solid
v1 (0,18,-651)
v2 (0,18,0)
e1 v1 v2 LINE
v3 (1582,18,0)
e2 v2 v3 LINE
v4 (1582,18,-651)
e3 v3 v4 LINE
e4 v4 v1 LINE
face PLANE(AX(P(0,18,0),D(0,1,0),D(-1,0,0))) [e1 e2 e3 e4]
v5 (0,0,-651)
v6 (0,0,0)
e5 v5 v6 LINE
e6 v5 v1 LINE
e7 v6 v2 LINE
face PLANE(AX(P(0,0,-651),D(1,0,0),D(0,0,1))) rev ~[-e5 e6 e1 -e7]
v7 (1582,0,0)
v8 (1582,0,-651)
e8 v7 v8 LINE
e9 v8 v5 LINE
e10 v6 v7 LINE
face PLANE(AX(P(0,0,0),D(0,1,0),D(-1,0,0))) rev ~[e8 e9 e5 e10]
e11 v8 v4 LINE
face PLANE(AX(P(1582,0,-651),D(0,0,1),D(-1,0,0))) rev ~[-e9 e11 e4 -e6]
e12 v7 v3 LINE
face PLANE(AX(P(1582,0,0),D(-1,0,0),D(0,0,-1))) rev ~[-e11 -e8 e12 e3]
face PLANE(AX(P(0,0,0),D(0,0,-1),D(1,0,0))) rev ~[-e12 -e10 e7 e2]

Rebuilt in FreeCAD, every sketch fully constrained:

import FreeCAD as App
import Part
import Sketcher
from FreeCAD import Vector


def add_polygon(sketch, points):
    """Adds a closed chain of lines whose ends are joined by coincident constraints."""
    first, n = sketch.GeometryCount, len(points)
    for a, b in zip(points, points[1:] + points[:1]):
        sketch.addGeometry(Part.LineSegment(App.Vector(*a, 0), App.Vector(*b, 0)), False)
    for i in range(n):
        sketch.addConstraint(Sketcher.Constraint("Coincident", first + i, 2, first + (i + 1) % n, 1))

doc = App.newDocument("Part")
body = doc.addObject("PartDesign::Body", "Body")

# Sketch on XZ plane
sketch1 = doc.addObject("Sketcher::SketchObject", "Sketch")
body.addObject(sketch1)
sketch1.AttachmentSupport = (doc.XZ_Plane, [""])
sketch1.MapMode = "FlatFace"
add_polygon(sketch1, [(0, -651), (0, 0), (1582, 0), (1582, -651)])  # lines 0-3
sketch1.addConstraint(Sketcher.Constraint("Vertical", 0))
sketch1.addConstraint(Sketcher.Constraint("Horizontal", 1))
sketch1.addConstraint(Sketcher.Constraint("Vertical", 2))
sketch1.addConstraint(Sketcher.Constraint("Horizontal", 3))
sketch1.addConstraint(Sketcher.Constraint("Coincident", 0, 2, -1, 1))
sketch1.addConstraint(Sketcher.Constraint("DistanceX", 1, 1, 1, 2, 1582.0))
sketch1.addConstraint(Sketcher.Constraint("DistanceY", 0, 1, 0, 2, 651.0))
pad1 = doc.addObject("PartDesign::Pad", "Pad")
body.addObject(pad1)
pad1.Profile = sketch1
pad1.Length = 18
pad1.Reversed = True

doc.recompute()
